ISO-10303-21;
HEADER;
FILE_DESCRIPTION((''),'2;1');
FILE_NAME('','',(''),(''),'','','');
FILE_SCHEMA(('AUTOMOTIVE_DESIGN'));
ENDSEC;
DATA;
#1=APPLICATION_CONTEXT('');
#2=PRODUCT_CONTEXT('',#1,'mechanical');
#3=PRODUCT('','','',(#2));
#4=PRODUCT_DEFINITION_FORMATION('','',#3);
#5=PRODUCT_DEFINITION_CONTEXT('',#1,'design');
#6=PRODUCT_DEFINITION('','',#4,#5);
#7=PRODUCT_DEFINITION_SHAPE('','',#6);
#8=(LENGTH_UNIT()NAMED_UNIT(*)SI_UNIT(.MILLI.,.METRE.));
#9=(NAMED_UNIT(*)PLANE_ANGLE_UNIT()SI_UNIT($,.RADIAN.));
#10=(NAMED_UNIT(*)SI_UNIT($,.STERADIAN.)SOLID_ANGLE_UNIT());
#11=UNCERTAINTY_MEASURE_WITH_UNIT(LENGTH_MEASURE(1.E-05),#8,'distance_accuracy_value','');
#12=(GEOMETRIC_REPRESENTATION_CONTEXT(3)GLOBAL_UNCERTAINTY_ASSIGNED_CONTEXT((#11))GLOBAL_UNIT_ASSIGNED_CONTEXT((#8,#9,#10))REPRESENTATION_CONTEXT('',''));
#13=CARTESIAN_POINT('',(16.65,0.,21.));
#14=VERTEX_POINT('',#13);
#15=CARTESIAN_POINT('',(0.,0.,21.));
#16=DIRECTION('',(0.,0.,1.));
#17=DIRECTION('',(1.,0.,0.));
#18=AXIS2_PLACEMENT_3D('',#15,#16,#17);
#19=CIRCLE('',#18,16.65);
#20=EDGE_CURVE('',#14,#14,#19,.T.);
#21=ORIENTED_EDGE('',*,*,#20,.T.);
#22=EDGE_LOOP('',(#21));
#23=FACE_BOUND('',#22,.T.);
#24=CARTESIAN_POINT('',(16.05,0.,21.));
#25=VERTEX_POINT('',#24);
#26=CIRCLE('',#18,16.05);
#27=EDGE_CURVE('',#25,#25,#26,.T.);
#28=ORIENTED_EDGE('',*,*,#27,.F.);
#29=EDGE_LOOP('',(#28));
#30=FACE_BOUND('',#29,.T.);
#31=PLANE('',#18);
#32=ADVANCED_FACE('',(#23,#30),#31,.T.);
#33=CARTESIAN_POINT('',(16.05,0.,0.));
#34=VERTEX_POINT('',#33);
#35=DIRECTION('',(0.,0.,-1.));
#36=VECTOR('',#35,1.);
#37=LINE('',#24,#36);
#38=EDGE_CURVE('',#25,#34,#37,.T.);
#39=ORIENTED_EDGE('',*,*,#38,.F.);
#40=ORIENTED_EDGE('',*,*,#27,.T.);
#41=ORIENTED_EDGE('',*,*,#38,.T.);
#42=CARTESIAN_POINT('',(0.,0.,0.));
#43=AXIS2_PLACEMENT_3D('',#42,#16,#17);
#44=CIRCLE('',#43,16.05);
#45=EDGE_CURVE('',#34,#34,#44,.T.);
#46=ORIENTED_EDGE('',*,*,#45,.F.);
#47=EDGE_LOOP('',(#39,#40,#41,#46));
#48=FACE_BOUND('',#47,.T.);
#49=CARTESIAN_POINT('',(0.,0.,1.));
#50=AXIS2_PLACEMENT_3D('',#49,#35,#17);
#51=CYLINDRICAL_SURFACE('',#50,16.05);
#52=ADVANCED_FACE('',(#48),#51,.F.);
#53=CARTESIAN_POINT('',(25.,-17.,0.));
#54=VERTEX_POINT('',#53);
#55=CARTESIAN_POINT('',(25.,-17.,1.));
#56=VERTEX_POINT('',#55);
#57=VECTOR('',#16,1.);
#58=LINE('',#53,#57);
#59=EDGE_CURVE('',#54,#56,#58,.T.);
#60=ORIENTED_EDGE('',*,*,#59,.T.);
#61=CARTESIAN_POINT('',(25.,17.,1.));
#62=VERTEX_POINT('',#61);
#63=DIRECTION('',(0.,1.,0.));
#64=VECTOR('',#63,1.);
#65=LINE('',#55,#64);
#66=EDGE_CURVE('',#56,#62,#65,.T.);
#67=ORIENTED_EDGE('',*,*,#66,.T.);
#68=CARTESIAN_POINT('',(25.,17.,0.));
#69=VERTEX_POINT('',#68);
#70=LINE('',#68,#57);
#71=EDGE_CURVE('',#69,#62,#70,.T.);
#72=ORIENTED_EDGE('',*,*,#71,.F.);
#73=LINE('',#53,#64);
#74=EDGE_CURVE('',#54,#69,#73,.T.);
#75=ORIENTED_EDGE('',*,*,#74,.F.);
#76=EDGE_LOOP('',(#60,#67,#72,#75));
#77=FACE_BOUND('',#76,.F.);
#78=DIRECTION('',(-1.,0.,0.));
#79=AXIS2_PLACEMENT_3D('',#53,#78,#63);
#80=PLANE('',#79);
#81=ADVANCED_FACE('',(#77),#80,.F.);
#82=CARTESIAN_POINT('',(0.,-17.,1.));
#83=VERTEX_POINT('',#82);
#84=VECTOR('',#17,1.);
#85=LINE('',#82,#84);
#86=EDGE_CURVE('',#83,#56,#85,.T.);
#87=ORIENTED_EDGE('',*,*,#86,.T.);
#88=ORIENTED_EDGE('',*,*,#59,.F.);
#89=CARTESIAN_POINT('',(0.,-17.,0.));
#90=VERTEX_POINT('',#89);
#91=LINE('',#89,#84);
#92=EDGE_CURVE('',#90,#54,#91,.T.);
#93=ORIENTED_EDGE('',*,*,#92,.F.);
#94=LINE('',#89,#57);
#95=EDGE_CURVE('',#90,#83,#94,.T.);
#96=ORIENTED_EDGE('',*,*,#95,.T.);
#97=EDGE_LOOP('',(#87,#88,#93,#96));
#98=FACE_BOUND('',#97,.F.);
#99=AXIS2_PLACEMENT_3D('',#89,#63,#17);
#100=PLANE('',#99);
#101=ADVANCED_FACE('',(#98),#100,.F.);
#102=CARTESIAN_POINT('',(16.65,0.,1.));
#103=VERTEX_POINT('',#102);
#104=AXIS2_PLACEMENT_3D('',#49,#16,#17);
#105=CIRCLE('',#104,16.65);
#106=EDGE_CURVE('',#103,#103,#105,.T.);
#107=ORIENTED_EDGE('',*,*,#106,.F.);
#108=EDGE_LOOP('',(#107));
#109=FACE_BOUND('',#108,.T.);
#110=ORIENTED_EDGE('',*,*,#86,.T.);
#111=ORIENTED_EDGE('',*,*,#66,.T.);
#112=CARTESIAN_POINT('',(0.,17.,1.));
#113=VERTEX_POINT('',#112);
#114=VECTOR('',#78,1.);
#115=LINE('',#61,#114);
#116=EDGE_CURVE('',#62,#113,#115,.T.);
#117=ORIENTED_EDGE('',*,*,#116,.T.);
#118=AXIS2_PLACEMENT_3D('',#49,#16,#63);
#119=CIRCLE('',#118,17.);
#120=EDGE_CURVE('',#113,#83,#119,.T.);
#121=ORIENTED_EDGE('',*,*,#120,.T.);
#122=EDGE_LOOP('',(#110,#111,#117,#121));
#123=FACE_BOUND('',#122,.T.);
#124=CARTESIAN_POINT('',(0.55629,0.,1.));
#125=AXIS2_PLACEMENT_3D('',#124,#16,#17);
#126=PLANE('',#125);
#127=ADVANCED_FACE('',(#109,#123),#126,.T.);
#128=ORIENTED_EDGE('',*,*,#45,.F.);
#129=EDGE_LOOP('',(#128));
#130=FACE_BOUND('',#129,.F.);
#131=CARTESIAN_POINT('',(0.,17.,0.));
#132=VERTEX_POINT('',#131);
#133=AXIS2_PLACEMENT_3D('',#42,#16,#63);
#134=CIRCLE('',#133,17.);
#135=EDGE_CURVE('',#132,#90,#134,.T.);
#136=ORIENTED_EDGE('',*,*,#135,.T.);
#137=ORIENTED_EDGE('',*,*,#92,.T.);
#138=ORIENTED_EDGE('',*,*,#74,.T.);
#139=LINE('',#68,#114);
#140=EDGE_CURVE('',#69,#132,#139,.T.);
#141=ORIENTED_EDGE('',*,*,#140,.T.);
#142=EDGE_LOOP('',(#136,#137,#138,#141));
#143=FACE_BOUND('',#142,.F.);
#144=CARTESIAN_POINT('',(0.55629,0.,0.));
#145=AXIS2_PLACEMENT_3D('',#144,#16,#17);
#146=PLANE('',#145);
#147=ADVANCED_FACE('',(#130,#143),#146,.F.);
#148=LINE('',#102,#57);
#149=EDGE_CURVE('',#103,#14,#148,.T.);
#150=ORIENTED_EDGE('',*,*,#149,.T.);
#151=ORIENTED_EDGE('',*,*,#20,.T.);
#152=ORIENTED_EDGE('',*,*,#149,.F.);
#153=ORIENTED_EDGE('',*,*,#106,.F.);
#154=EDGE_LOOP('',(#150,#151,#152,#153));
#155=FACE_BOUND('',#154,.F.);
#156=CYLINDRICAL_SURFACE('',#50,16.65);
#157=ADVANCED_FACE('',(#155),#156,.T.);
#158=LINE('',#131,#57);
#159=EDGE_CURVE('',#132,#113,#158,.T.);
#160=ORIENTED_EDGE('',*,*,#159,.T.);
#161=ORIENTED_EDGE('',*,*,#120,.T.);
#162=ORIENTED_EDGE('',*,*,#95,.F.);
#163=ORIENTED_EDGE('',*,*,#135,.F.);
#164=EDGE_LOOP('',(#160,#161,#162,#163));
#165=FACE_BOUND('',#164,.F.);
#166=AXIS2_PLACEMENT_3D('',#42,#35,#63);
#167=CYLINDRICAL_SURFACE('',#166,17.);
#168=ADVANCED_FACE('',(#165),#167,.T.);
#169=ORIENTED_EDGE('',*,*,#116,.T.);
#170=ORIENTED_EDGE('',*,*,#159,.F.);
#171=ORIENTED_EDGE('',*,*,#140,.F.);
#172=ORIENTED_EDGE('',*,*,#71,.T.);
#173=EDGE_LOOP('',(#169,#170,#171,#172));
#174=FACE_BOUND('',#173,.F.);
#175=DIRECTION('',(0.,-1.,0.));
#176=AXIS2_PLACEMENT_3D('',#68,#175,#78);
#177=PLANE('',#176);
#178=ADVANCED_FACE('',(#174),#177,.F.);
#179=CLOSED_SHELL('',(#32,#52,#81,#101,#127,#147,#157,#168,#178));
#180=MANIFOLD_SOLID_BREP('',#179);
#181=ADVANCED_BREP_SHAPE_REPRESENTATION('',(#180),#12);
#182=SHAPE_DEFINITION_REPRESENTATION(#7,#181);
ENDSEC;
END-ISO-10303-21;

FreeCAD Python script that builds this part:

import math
import FreeCAD as App
import Part
import Sketcher
Q = App.Units.Quantity

doc = App.newDocument("Part")
body = doc.addObject("PartDesign::Body", "Body")

sketch1 = body.newObject("Sketcher::SketchObject", "Sketch")
sketch1.AttachmentSupport = (doc.getObject("XY_Plane"), [""])
sketch1.MapMode = "FlatFace"
sketch1.addGeometry(Part.ArcOfCircle(Part.Circle(App.Vector(0, 0, 0), App.Vector(0, 0, 1), 17), math.radians(90), math.radians(270)), False)
sketch1.addGeometry(Part.LineSegment(App.Vector(0, -17, 0), App.Vector(25, -17, 0)), False)
sketch1.addGeometry(Part.LineSegment(App.Vector(25, -17, 0), App.Vector(25, 17, 0)), False)
sketch1.addGeometry(Part.LineSegment(App.Vector(25, 17, 0), App.Vector(0, 17, 0)), False)
sketch1.addGeometry(Part.Circle(App.Vector(0, 0, 0), App.Vector(0, 0, 1), 16.05), False)
sketch1.addConstraint(Sketcher.Constraint("Tangent", 0, 2, 1, 1))
sketch1.addConstraint(Sketcher.Constraint("Coincident", 1, 2, 2, 1))
sketch1.addConstraint(Sketcher.Constraint("Coincident", 2, 2, 3, 1))
sketch1.addConstraint(Sketcher.Constraint("Tangent", 3, 2, 0, 1))
sketch1.addConstraint(Sketcher.Constraint("Horizontal", 1))
sketch1.addConstraint(Sketcher.Constraint("Vertical", 2))
sketch1.addConstraint(Sketcher.Constraint("Horizontal", 3))
sketch1.addConstraint(Sketcher.Constraint("Coincident", 0, 3, -1, 1))
sketch1.addConstraint(Sketcher.Constraint("Coincident", 4, 3, -1, 1))
sketch1.addConstraint(Sketcher.Constraint("Radius", 0, Q("17 mm")))
sketch1.addConstraint(Sketcher.Constraint("Diameter", 4, Q("32.1 mm")))
sketch1.addConstraint(Sketcher.Constraint("DistanceX", 1, 1, 1, 2, Q("25 mm")))
pad1 = body.newObject("PartDesign::Pad", "Pad")
pad1.Profile = sketch1
pad1.Length = 1

sketch2 = body.newObject("Sketcher::SketchObject", "Sketch001")
sketch2.AttachmentSupport = (doc.getObject("XY_Plane"), [""])
sketch2.MapMode = "FlatFace"
sketch2.AttachmentOffset = App.Placement(App.Vector(0, 0, 1), App.Rotation())
sketch2.addGeometry(Part.Circle(App.Vector(0, 0, 0), App.Vector(0, 0, 1), 16.65), False)
sketch2.addGeometry(Part.Circle(App.Vector(0, 0, 0), App.Vector(0, 0, 1), 16.05), False)
sketch2.addConstraint(Sketcher.Constraint("Coincident", 0, 3, -1, 1))
sketch2.addConstraint(Sketcher.Constraint("Coincident", 1, 3, -1, 1))
sketch2.addConstraint(Sketcher.Constraint("Diameter", 0, Q("33.3 mm")))
sketch2.addConstraint(Sketcher.Constraint("Diameter", 1, Q("32.1 mm")))
pad2 = body.newObject("PartDesign::Pad", "Pad001")
pad2.Profile = sketch2
pad2.Length = 20

doc.recompute()
